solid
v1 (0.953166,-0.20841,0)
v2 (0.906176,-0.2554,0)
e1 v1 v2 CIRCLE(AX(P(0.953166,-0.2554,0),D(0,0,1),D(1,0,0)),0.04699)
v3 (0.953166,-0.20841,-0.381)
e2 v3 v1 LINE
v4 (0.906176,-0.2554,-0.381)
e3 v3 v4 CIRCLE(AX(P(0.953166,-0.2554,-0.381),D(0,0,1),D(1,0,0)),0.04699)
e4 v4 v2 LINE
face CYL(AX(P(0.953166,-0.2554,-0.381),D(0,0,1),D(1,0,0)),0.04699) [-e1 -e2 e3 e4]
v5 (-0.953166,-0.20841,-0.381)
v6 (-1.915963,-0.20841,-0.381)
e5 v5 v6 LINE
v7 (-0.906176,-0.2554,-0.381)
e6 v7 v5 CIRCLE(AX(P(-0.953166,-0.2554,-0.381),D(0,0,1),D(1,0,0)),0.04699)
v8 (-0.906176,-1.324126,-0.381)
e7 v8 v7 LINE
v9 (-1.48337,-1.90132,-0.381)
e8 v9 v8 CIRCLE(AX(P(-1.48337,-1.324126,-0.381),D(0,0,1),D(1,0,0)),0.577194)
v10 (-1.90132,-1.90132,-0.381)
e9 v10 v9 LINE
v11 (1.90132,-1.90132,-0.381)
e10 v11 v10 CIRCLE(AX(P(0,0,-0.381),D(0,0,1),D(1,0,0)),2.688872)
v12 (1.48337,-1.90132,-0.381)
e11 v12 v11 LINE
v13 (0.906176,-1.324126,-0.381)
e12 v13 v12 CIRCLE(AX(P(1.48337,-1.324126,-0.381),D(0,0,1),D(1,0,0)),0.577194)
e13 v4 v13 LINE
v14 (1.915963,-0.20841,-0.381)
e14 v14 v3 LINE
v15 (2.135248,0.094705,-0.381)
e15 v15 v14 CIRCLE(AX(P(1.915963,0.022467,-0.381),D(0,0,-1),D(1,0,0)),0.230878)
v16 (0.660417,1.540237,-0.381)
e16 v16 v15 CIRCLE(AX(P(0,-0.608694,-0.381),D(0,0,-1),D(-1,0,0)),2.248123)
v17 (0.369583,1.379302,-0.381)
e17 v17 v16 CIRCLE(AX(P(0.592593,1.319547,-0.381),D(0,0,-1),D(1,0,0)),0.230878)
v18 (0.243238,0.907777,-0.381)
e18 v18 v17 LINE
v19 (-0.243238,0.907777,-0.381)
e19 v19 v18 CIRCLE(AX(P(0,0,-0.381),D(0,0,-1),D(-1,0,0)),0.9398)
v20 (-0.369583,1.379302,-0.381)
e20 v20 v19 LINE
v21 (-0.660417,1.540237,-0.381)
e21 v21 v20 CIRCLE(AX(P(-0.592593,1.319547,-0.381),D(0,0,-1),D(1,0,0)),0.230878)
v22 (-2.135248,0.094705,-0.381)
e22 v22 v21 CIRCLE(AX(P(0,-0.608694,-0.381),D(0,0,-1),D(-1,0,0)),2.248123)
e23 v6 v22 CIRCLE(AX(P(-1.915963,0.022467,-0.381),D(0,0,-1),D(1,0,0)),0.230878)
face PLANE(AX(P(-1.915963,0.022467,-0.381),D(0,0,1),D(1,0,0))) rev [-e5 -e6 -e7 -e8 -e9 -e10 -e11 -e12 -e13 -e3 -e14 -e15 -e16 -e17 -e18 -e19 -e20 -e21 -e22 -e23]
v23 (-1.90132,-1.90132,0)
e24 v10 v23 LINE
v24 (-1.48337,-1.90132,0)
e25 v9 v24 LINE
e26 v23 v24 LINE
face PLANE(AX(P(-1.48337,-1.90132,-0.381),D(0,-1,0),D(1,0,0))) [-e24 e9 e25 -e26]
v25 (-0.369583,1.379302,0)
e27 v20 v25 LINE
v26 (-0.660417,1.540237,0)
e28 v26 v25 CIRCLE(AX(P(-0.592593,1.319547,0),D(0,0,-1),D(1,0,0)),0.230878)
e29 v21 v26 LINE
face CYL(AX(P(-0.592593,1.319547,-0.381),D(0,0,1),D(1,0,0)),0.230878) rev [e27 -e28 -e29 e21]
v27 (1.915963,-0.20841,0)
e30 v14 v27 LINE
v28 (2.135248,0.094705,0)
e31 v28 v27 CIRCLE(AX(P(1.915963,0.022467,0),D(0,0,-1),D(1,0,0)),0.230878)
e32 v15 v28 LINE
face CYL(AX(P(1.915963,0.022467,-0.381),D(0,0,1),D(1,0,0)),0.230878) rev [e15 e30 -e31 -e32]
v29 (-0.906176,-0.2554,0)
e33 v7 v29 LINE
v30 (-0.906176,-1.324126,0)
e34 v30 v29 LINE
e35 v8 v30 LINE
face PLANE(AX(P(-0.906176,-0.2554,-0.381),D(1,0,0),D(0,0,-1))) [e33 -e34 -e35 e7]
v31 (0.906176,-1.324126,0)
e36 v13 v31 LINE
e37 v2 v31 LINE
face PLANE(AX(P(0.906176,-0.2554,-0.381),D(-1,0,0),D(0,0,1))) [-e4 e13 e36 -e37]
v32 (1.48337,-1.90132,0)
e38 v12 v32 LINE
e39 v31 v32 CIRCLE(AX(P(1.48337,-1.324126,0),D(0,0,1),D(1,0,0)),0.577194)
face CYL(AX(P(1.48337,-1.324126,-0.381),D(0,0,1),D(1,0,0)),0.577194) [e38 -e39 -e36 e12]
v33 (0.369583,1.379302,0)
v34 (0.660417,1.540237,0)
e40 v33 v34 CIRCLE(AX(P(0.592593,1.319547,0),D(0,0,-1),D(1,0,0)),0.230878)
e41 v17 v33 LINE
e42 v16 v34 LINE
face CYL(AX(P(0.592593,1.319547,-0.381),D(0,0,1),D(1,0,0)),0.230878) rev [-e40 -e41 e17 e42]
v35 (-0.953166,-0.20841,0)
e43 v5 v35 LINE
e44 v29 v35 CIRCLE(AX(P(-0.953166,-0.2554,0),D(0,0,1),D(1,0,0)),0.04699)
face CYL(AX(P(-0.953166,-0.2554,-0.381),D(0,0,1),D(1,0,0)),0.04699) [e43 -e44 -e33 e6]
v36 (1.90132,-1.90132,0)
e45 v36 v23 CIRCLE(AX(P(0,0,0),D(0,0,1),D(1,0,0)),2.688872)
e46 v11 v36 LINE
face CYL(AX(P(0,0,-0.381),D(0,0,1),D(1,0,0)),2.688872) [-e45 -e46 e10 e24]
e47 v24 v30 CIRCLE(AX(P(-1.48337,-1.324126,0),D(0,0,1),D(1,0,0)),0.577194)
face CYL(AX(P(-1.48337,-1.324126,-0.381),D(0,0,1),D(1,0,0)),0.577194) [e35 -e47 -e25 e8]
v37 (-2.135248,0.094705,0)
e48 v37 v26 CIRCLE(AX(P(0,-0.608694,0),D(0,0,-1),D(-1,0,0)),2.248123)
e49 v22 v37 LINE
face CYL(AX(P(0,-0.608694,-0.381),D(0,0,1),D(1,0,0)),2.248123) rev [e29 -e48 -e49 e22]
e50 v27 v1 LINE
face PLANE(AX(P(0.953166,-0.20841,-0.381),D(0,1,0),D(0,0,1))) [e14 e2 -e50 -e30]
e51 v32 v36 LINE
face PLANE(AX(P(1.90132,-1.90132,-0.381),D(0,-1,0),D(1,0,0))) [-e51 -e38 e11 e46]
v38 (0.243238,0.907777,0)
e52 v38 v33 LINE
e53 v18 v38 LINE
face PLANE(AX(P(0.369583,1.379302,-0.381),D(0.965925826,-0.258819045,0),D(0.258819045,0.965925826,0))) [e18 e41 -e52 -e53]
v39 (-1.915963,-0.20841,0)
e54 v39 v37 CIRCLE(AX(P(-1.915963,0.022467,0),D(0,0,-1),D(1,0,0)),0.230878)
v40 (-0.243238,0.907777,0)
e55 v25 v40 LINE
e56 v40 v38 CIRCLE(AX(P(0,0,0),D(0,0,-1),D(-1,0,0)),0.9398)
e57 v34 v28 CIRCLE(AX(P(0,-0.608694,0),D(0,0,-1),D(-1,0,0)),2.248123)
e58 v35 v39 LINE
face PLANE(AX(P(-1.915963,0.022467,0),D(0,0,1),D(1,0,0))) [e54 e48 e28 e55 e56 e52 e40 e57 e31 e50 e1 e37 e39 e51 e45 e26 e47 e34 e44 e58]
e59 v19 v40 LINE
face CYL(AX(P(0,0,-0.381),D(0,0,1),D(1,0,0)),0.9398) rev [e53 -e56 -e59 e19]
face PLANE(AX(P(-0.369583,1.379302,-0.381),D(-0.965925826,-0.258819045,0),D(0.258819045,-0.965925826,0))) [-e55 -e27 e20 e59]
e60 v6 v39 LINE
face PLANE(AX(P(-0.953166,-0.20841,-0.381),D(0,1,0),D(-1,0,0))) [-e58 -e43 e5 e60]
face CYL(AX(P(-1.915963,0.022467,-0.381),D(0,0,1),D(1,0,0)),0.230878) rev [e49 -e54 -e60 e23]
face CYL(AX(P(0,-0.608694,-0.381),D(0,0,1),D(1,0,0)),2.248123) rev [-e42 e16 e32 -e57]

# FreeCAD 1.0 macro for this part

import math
import FreeCAD as App
import Part
import Sketcher

V = App.Vector
Q = App.Units.Quantity

doc = App.newDocument("Part")
params = doc.addObject("Spreadsheet::Sheet", "Params")
for row, (alias, value) in enumerate([
    ("sketch1_radius", "0.037 in"),
    ("pad1_length", "0.015 in"),
], start=1):
    params.set(f"A{row}", alias)
    params.set(f"B{row}", "=" + value)
    params.setAlias(f"B{row}", alias)

body = doc.addObject("PartDesign::Body", "Body")

sketch1 = body.newObject("Sketcher::SketchObject", "Sketch")
sketch1.AttachmentSupport = (doc.getObject("XY_Plane"), [""])
sketch1.MapMode = "FlatFace"
sketch1.addGeometry([
    Part.LineSegment(V(1.483, -1.901, 0), V(1.901, -1.901, 0)),
    Part.ArcOfCircle(Part.Circle(V(0, 0, 0), V(0, 0, 1), 2.689), math.radians(-45), math.radians(225)),
    Part.LineSegment(V(-1.901, -1.901, 0), V(-1.483, -1.901, 0)),
    Part.ArcOfCircle(Part.Circle(V(-1.483, -1.324, 0), V(0, 0, 1), 0.577), math.radians(-90), math.radians(0)),
    Part.LineSegment(V(-0.906, -1.324, 0), V(-0.906, -0.255, 0)),
    Part.ArcOfCircle(Part.Circle(V(-0.953, -0.255, 0), V(0, 0, 1), 0.047), math.radians(0), math.radians(90)),
    Part.LineSegment(V(-0.953, -0.208, 0), V(-1.916, -0.208, 0)),
    Part.ArcOfCircle(Part.Circle(V(-1.916, 0.022, 0), V(0, 0, 1), 0.231), math.radians(162), math.radians(270)),
    Part.ArcOfCircle(Part.Circle(V(0, -0.609, 0), V(0, 0, 1), 2.248), math.radians(107), math.radians(162)),
    Part.ArcOfCircle(Part.Circle(V(-0.593, 1.32, 0), V(0, 0, 1), 0.231), math.radians(15), math.radians(107)),
    Part.LineSegment(V(-0.37, 1.379, 0), V(-0.243, 0.908, 0)),
    Part.ArcOfCircle(Part.Circle(V(0, 0, 0), V(0, 0, 1), 0.94), math.radians(75), math.radians(105)),
    Part.LineSegment(V(0.243, 0.908, 0), V(0.37, 1.379, 0)),
    Part.ArcOfCircle(Part.Circle(V(0.593, 1.32, 0), V(0, 0, 1), 0.231), math.radians(73), math.radians(165)),
    Part.ArcOfCircle(Part.Circle(V(0, -0.609, 0), V(0, 0, 1), 2.248), math.radians(18), math.radians(73)),
    Part.ArcOfCircle(Part.Circle(V(1.916, 0.022, 0), V(0, 0, 1), 0.231), math.radians(-90), math.radians(18)),
    Part.LineSegment(V(1.916, -0.208, 0), V(0.953, -0.208, 0)),
    Part.ArcOfCircle(Part.Circle(V(0.953, -0.255, 0), V(0, 0, 1), 0.047), math.radians(90), math.radians(180)),
    Part.LineSegment(V(0.906, -0.255, 0), V(0.906, -1.324, 0)),
    Part.ArcOfCircle(Part.Circle(V(1.483, -1.324, 0), V(0, 0, 1), 0.577), math.radians(-180), math.radians(-90)),
], False)
sketch1.addConstraint([
    Sketcher.Constraint("Coincident", 0, 2, 1, 1),
    Sketcher.Constraint("Coincident", 1, 2, 2, 1),
    Sketcher.Constraint("Tangent", 2, 2, 3, 1),
    Sketcher.Constraint("Tangent", 3, 2, 4, 1),
    Sketcher.Constraint("Tangent", 4, 2, 5, 1),
    Sketcher.Constraint("Tangent", 5, 2, 6, 1),
    Sketcher.Constraint("Tangent", 6, 2, 7, 2),
    Sketcher.Constraint("Tangent", 7, 1, 8, 2),
    Sketcher.Constraint("Tangent", 8, 1, 9, 2),
    Sketcher.Constraint("Tangent", 9, 1, 10, 1),
    Sketcher.Constraint("Coincident", 10, 2, 11, 2),
    Sketcher.Constraint("Coincident", 11, 1, 12, 1),
    Sketcher.Constraint("Tangent", 12, 2, 13, 2),
    Sketcher.Constraint("Tangent", 13, 1, 14, 2),
    Sketcher.Constraint("Tangent", 14, 1, 15, 2),
    Sketcher.Constraint("Tangent", 15, 1, 16, 1),
    Sketcher.Constraint("Tangent", 16, 2, 17, 1),
    Sketcher.Constraint("Tangent", 17, 2, 18, 1),
    Sketcher.Constraint("Tangent", 18, 2, 19, 1),
    Sketcher.Constraint("Tangent", 19, 2, 0, 1),
    Sketcher.Constraint("Horizontal", 0),
    Sketcher.Constraint("Horizontal", 2),
    Sketcher.Constraint("Vertical", 4),
    Sketcher.Constraint("Horizontal", 6),
    Sketcher.Constraint("Horizontal", 16),
    Sketcher.Constraint("Vertical", 18),
    Sketcher.Constraint("Coincident", 1, 3, -1, 1),
    Sketcher.Constraint("Coincident", 11, 3, -1, 1),
    Sketcher.Constraint("Coincident", 14, 3, 8, 3),
    Sketcher.Constraint("Equal", 7, 9),
    Sketcher.Constraint("Equal", 9, 13),
    Sketcher.Constraint("Equal", 8, 14),
    Sketcher.Constraint("Equal", 13, 15),
    Sketcher.Constraint("Equal", 5, 17),
    Sketcher.Constraint("Equal", 3, 19),
    Sketcher.Constraint("Symmetric", 9, 3, 13, 3, -2),
    Sketcher.Constraint("Symmetric", 5, 3, 17, 3, -2),
    Sketcher.Constraint("Horizontal", 3, 3, 19, 3),
    Sketcher.Constraint("Horizontal", 10, 2, 11, 1),
    Sketcher.Constraint("Angle", 10, Q("-75 deg")),
    Sketcher.Constraint("Radius", 11, Q("0.037 in")),
    Sketcher.Constraint("Radius", 5, 0.04699),
    Sketcher.Constraint("Radius", 1, 2.688872),
    Sketcher.Constraint("Radius", 3, 0.577194),
    Sketcher.Constraint("Radius", 7, 0.230878),
    Sketcher.Constraint("Radius", 8, 2.248123),
    Sketcher.Constraint("DistanceY", 0, 2, 17, 3, Q("0.0648 in")),
    Sketcher.Constraint("DistanceY", 10, 2, 8, 1, Q("0.0249 in")),
    Sketcher.Constraint("DistanceX", 0, 1, 0, 2, 0.41795),
    Sketcher.Constraint("DistanceY", 5, 3, -1, 1, 0.2554),
    Sketcher.Constraint("DistanceX", 9, 1, 13, 1, 1.03),
])
sketch1.setExpression("Constraints[40]", "Params.sketch1_radius")
pad1 = body.newObject("PartDesign::Pad", "Pad")
pad1.Profile = sketch1
pad1.setExpression("Length", "Params.pad1_length")
pad1.Reversed = True

doc.recompute()
